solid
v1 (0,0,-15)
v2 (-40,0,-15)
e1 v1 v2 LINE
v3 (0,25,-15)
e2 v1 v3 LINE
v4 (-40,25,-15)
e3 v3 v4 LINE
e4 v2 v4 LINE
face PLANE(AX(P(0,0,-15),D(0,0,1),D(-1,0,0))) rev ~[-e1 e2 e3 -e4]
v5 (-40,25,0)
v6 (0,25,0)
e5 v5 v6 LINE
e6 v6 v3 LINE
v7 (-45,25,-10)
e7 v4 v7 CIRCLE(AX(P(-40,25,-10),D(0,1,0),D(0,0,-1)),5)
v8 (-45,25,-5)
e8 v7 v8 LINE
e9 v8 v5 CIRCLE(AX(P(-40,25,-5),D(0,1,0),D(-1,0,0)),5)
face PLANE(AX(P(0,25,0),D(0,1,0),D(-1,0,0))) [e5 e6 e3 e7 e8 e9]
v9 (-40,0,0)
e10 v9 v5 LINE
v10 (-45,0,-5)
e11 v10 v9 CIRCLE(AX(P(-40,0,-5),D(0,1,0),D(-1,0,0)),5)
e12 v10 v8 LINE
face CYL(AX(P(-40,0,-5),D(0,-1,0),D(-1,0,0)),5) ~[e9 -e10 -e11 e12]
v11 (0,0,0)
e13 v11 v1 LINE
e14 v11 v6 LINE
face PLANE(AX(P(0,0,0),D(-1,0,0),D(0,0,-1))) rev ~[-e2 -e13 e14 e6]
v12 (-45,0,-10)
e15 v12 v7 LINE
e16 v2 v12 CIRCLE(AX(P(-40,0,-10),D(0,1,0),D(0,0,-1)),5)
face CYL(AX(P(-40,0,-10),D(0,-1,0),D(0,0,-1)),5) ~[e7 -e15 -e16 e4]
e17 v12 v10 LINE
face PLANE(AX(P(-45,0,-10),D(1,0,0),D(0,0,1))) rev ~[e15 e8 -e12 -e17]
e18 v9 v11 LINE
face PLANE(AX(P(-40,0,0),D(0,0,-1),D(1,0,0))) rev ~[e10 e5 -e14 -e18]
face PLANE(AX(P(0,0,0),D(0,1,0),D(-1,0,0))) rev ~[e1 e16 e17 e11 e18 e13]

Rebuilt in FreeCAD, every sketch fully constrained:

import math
import FreeCAD as App
import Part
import Sketcher
from FreeCAD import Vector

doc = App.newDocument("Part")
params = doc.addObject("Spreadsheet::Sheet", "Params")
for row, (alias, value) in enumerate([
    ("sketch1_radius", "5 mm"),
    ("sketch1_height", "15 mm"),
    ("pad1_length", "25 mm"),
], start=1):
    params.set(f"A{row}", alias)
    params.set(f"B{row}", "=" + value)
    params.setAlias(f"B{row}", alias)

body = doc.addObject("PartDesign::Body", "Body")

sketch1 = body.newObject("Sketcher::SketchObject", "Sketch")
sketch1.AttachmentSupport = (doc.getObject("XZ_Plane"), [""])
sketch1.MapMode = "FlatFace"
sketch1.addGeometry(Part.ArcOfCircle(Part.Circle(Vector(-40, -5, 0), Vector(0, 0, 1), 5), math.radians(90), math.radians(180)), False)
sketch1.addGeometry(Part.LineSegment(Vector(-40, 0, 0), Vector(0, 0, 0)), False)
sketch1.addGeometry(Part.LineSegment(Vector(0, 0, 0), Vector(0, -15, 0)), False)
sketch1.addGeometry(Part.LineSegment(Vector(0, -15, 0), Vector(-40, -15, 0)), False)
sketch1.addGeometry(Part.ArcOfCircle(Part.Circle(Vector(-40, -10, 0), Vector(0, 0, 1), 5), math.radians(180), math.radians(270)), False)
sketch1.addGeometry(Part.LineSegment(Vector(-45, -10, 0), Vector(-45, -5, 0)), False)
sketch1.addConstraint(Sketcher.Constraint("Tangent", 0, 1, 1, 1))
sketch1.addConstraint(Sketcher.Constraint("Coincident", 1, 2, 2, 1))
sketch1.addConstraint(Sketcher.Constraint("Coincident", 2, 2, 3, 1))
sketch1.addConstraint(Sketcher.Constraint("Tangent", 3, 2, 4, 2))
sketch1.addConstraint(Sketcher.Constraint("Tangent", 4, 1, 5, 1))
sketch1.addConstraint(Sketcher.Constraint("Tangent", 5, 2, 0, 2))
sketch1.addConstraint(Sketcher.Constraint("Horizontal", 1))
sketch1.addConstraint(Sketcher.Constraint("Vertical", 2))
sketch1.addConstraint(Sketcher.Constraint("Horizontal", 3))
sketch1.addConstraint(Sketcher.Constraint("Vertical", 5))
sketch1.addConstraint(Sketcher.Constraint("Coincident", 1, 2, -1, 1))
sketch1.addConstraint(Sketcher.Constraint("Equal", 0, 4))
sketch1.addConstraint(Sketcher.Constraint("Radius", 0, 5.0))
sketch1.addConstraint(Sketcher.Constraint("DistanceY", 2, 2, 2, 1, 15.0))
sketch1.addConstraint(Sketcher.Constraint("DistanceX", 4, 1, -1, 1, 45.0))
sketch1.setExpression("Constraints[12]", "Params.sketch1_radius")
sketch1.setExpression("Constraints[13]", "Params.sketch1_height")
pad1 = body.newObject("PartDesign::Pad", "Pad")
pad1.Profile = sketch1
pad1.setExpression("Length", "Params.pad1_length")
pad1.Reversed = True

doc.recompute()
